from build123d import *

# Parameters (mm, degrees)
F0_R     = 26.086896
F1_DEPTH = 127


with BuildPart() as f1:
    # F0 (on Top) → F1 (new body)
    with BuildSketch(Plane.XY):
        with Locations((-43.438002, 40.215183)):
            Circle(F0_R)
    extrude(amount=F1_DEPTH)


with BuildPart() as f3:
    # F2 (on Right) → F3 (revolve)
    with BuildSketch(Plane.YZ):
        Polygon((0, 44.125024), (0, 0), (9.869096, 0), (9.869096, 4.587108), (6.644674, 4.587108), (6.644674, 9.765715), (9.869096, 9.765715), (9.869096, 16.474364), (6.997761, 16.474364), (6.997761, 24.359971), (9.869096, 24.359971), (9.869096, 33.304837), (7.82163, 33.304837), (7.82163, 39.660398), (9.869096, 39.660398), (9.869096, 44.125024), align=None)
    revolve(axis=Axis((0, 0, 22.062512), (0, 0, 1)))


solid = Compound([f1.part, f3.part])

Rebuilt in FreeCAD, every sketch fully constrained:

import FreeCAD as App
import Part
import Sketcher
from FreeCAD import Vector
Q = App.Units.Quantity


def add_polygon(sketch, points):
    """Adds a closed chain of lines whose ends are joined by coincident constraints."""
    first, n = sketch.GeometryCount, len(points)
    for a, b in zip(points, points[1:] + points[:1]):
        sketch.addGeometry(Part.LineSegment(App.Vector(*a, 0), App.Vector(*b, 0)), False)
    for i in range(n):
        sketch.addConstraint(Sketcher.Constraint("Coincident", first + i, 2, first + (i + 1) % n, 1))

doc = App.newDocument("Part")
body = doc.addObject("PartDesign::Body", "Body")

# Sketch on XY plane
sketch1 = body.newObject("Sketcher::SketchObject", "Sketch")
sketch1.AttachmentSupport = (doc.getObject("XY_Plane"), [""])
sketch1.MapMode = "FlatFace"
sketch1.addGeometry(Part.Circle(Vector(-43, 40, 0), Vector(0, 0, 1), 26), False)
sketch1.addConstraint(Sketcher.Constraint("Diameter", 0, Q("52.173792 mm")))
sketch1.addConstraint(Sketcher.Constraint("DistanceX", 0, 3, -1, 1, Q("43.438002 mm")))
sketch1.addConstraint(Sketcher.Constraint("DistanceY", -1, 1, 0, 3, Q("40.215183 mm")))
pad1 = body.newObject("PartDesign::Pad", "Pad")
pad1.Profile = sketch1
pad1.Length = Q("5 in")
body2 = doc.addObject("PartDesign::Body", "Body001")

# Sketch on YZ plane
sketch2 = body2.newObject("Sketcher::SketchObject", "Sketch001")
sketch2.AttachmentSupport = (doc.getObject("YZ_Plane001"), [""])
sketch2.MapMode = "FlatFace"
add_polygon(sketch2, [(0, 44.1), (0, 0), (9.9, 0), (9.9, 4.6), (6.6, 4.6), (6.6, 9.8), (9.9, 9.8), (9.9, 16.5), (7, 16.5), (7, 24.4), (9.9, 24.4), (9.9, 33.3), (7.8, 33.3), (7.8, 39.7), (9.9, 39.7), (9.9, 44.1)])  # lines 0-15
sketch2.addConstraint(Sketcher.Constraint("Vertical", 0))
sketch2.addConstraint(Sketcher.Constraint("Horizontal", 1))
sketch2.addConstraint(Sketcher.Constraint("Vertical", 2))
sketch2.addConstraint(Sketcher.Constraint("Horizontal", 3))
sketch2.addConstraint(Sketcher.Constraint("Vertical", 4))
sketch2.addConstraint(Sketcher.Constraint("Horizontal", 5))
sketch2.addConstraint(Sketcher.Constraint("Vertical", 6))
sketch2.addConstraint(Sketcher.Constraint("Horizontal", 7))
sketch2.addConstraint(Sketcher.Constraint("Vertical", 8))
sketch2.addConstraint(Sketcher.Constraint("Horizontal", 9))
sketch2.addConstraint(Sketcher.Constraint("Vertical", 10))
sketch2.addConstraint(Sketcher.Constraint("Horizontal", 11))
sketch2.addConstraint(Sketcher.Constraint("Vertical", 12))
sketch2.addConstraint(Sketcher.Constraint("Horizontal", 13))
sketch2.addConstraint(Sketcher.Constraint("Vertical", 14))
sketch2.addConstraint(Sketcher.Constraint("Horizontal", 15))
sketch2.addConstraint(Sketcher.Constraint("Coincident", 0, 2, -1, 1))
sketch2.addConstraint(Sketcher.Constraint("Vertical", 2, 2, 5, 2))
sketch2.addConstraint(Sketcher.Constraint("Vertical", 6, 2, 9, 2))
sketch2.addConstraint(Sketcher.Constraint("Vertical", 10, 2, 13, 2))
sketch2.addConstraint(Sketcher.Constraint("DistanceY", 6, 1, 6, 2, Q("6.708649 mm")))
sketch2.addConstraint(Sketcher.Constraint("DistanceY", 12, 1, 12, 2, Q("6.355561 mm")))
sketch2.addConstraint(Sketcher.Constraint("DistanceX", 1, 1, 1, 2, Q("9.869096 mm")))
sketch2.addConstraint(Sketcher.Constraint("DistanceX", 3, 2, 3, 1, Q("3.224422 mm")))
sketch2.addConstraint(Sketcher.Constraint("DistanceX", 7, 2, 7, 1, Q("2.871335 mm")))
sketch2.addConstraint(Sketcher.Constraint("DistanceX", 11, 2, 11, 1, Q("2.047466 mm")))
sketch2.addConstraint(Sketcher.Constraint("DistanceY", 0, 2, 0, 1, Q("44.125024 mm")))
sketch2.addConstraint(Sketcher.Constraint("DistanceY", 2, 1, 2, 2, Q("4.587108 mm")))
sketch2.addConstraint(Sketcher.Constraint("DistanceY", 4, 1, 4, 2, Q("5.178607 mm")))
sketch2.addConstraint(Sketcher.Constraint("DistanceY", 8, 1, 8, 2, Q("7.885607 mm")))
sketch2.addConstraint(Sketcher.Constraint("DistanceY", 10, 1, 10, 2, Q("8.944866 mm")))
revolution = body2.newObject("PartDesign::Revolution", "Revolution")
revolution.Profile = sketch2
revolution.ReferenceAxis = (sketch2, ["V_Axis"])
revolution.Angle = 360

doc.recompute()
